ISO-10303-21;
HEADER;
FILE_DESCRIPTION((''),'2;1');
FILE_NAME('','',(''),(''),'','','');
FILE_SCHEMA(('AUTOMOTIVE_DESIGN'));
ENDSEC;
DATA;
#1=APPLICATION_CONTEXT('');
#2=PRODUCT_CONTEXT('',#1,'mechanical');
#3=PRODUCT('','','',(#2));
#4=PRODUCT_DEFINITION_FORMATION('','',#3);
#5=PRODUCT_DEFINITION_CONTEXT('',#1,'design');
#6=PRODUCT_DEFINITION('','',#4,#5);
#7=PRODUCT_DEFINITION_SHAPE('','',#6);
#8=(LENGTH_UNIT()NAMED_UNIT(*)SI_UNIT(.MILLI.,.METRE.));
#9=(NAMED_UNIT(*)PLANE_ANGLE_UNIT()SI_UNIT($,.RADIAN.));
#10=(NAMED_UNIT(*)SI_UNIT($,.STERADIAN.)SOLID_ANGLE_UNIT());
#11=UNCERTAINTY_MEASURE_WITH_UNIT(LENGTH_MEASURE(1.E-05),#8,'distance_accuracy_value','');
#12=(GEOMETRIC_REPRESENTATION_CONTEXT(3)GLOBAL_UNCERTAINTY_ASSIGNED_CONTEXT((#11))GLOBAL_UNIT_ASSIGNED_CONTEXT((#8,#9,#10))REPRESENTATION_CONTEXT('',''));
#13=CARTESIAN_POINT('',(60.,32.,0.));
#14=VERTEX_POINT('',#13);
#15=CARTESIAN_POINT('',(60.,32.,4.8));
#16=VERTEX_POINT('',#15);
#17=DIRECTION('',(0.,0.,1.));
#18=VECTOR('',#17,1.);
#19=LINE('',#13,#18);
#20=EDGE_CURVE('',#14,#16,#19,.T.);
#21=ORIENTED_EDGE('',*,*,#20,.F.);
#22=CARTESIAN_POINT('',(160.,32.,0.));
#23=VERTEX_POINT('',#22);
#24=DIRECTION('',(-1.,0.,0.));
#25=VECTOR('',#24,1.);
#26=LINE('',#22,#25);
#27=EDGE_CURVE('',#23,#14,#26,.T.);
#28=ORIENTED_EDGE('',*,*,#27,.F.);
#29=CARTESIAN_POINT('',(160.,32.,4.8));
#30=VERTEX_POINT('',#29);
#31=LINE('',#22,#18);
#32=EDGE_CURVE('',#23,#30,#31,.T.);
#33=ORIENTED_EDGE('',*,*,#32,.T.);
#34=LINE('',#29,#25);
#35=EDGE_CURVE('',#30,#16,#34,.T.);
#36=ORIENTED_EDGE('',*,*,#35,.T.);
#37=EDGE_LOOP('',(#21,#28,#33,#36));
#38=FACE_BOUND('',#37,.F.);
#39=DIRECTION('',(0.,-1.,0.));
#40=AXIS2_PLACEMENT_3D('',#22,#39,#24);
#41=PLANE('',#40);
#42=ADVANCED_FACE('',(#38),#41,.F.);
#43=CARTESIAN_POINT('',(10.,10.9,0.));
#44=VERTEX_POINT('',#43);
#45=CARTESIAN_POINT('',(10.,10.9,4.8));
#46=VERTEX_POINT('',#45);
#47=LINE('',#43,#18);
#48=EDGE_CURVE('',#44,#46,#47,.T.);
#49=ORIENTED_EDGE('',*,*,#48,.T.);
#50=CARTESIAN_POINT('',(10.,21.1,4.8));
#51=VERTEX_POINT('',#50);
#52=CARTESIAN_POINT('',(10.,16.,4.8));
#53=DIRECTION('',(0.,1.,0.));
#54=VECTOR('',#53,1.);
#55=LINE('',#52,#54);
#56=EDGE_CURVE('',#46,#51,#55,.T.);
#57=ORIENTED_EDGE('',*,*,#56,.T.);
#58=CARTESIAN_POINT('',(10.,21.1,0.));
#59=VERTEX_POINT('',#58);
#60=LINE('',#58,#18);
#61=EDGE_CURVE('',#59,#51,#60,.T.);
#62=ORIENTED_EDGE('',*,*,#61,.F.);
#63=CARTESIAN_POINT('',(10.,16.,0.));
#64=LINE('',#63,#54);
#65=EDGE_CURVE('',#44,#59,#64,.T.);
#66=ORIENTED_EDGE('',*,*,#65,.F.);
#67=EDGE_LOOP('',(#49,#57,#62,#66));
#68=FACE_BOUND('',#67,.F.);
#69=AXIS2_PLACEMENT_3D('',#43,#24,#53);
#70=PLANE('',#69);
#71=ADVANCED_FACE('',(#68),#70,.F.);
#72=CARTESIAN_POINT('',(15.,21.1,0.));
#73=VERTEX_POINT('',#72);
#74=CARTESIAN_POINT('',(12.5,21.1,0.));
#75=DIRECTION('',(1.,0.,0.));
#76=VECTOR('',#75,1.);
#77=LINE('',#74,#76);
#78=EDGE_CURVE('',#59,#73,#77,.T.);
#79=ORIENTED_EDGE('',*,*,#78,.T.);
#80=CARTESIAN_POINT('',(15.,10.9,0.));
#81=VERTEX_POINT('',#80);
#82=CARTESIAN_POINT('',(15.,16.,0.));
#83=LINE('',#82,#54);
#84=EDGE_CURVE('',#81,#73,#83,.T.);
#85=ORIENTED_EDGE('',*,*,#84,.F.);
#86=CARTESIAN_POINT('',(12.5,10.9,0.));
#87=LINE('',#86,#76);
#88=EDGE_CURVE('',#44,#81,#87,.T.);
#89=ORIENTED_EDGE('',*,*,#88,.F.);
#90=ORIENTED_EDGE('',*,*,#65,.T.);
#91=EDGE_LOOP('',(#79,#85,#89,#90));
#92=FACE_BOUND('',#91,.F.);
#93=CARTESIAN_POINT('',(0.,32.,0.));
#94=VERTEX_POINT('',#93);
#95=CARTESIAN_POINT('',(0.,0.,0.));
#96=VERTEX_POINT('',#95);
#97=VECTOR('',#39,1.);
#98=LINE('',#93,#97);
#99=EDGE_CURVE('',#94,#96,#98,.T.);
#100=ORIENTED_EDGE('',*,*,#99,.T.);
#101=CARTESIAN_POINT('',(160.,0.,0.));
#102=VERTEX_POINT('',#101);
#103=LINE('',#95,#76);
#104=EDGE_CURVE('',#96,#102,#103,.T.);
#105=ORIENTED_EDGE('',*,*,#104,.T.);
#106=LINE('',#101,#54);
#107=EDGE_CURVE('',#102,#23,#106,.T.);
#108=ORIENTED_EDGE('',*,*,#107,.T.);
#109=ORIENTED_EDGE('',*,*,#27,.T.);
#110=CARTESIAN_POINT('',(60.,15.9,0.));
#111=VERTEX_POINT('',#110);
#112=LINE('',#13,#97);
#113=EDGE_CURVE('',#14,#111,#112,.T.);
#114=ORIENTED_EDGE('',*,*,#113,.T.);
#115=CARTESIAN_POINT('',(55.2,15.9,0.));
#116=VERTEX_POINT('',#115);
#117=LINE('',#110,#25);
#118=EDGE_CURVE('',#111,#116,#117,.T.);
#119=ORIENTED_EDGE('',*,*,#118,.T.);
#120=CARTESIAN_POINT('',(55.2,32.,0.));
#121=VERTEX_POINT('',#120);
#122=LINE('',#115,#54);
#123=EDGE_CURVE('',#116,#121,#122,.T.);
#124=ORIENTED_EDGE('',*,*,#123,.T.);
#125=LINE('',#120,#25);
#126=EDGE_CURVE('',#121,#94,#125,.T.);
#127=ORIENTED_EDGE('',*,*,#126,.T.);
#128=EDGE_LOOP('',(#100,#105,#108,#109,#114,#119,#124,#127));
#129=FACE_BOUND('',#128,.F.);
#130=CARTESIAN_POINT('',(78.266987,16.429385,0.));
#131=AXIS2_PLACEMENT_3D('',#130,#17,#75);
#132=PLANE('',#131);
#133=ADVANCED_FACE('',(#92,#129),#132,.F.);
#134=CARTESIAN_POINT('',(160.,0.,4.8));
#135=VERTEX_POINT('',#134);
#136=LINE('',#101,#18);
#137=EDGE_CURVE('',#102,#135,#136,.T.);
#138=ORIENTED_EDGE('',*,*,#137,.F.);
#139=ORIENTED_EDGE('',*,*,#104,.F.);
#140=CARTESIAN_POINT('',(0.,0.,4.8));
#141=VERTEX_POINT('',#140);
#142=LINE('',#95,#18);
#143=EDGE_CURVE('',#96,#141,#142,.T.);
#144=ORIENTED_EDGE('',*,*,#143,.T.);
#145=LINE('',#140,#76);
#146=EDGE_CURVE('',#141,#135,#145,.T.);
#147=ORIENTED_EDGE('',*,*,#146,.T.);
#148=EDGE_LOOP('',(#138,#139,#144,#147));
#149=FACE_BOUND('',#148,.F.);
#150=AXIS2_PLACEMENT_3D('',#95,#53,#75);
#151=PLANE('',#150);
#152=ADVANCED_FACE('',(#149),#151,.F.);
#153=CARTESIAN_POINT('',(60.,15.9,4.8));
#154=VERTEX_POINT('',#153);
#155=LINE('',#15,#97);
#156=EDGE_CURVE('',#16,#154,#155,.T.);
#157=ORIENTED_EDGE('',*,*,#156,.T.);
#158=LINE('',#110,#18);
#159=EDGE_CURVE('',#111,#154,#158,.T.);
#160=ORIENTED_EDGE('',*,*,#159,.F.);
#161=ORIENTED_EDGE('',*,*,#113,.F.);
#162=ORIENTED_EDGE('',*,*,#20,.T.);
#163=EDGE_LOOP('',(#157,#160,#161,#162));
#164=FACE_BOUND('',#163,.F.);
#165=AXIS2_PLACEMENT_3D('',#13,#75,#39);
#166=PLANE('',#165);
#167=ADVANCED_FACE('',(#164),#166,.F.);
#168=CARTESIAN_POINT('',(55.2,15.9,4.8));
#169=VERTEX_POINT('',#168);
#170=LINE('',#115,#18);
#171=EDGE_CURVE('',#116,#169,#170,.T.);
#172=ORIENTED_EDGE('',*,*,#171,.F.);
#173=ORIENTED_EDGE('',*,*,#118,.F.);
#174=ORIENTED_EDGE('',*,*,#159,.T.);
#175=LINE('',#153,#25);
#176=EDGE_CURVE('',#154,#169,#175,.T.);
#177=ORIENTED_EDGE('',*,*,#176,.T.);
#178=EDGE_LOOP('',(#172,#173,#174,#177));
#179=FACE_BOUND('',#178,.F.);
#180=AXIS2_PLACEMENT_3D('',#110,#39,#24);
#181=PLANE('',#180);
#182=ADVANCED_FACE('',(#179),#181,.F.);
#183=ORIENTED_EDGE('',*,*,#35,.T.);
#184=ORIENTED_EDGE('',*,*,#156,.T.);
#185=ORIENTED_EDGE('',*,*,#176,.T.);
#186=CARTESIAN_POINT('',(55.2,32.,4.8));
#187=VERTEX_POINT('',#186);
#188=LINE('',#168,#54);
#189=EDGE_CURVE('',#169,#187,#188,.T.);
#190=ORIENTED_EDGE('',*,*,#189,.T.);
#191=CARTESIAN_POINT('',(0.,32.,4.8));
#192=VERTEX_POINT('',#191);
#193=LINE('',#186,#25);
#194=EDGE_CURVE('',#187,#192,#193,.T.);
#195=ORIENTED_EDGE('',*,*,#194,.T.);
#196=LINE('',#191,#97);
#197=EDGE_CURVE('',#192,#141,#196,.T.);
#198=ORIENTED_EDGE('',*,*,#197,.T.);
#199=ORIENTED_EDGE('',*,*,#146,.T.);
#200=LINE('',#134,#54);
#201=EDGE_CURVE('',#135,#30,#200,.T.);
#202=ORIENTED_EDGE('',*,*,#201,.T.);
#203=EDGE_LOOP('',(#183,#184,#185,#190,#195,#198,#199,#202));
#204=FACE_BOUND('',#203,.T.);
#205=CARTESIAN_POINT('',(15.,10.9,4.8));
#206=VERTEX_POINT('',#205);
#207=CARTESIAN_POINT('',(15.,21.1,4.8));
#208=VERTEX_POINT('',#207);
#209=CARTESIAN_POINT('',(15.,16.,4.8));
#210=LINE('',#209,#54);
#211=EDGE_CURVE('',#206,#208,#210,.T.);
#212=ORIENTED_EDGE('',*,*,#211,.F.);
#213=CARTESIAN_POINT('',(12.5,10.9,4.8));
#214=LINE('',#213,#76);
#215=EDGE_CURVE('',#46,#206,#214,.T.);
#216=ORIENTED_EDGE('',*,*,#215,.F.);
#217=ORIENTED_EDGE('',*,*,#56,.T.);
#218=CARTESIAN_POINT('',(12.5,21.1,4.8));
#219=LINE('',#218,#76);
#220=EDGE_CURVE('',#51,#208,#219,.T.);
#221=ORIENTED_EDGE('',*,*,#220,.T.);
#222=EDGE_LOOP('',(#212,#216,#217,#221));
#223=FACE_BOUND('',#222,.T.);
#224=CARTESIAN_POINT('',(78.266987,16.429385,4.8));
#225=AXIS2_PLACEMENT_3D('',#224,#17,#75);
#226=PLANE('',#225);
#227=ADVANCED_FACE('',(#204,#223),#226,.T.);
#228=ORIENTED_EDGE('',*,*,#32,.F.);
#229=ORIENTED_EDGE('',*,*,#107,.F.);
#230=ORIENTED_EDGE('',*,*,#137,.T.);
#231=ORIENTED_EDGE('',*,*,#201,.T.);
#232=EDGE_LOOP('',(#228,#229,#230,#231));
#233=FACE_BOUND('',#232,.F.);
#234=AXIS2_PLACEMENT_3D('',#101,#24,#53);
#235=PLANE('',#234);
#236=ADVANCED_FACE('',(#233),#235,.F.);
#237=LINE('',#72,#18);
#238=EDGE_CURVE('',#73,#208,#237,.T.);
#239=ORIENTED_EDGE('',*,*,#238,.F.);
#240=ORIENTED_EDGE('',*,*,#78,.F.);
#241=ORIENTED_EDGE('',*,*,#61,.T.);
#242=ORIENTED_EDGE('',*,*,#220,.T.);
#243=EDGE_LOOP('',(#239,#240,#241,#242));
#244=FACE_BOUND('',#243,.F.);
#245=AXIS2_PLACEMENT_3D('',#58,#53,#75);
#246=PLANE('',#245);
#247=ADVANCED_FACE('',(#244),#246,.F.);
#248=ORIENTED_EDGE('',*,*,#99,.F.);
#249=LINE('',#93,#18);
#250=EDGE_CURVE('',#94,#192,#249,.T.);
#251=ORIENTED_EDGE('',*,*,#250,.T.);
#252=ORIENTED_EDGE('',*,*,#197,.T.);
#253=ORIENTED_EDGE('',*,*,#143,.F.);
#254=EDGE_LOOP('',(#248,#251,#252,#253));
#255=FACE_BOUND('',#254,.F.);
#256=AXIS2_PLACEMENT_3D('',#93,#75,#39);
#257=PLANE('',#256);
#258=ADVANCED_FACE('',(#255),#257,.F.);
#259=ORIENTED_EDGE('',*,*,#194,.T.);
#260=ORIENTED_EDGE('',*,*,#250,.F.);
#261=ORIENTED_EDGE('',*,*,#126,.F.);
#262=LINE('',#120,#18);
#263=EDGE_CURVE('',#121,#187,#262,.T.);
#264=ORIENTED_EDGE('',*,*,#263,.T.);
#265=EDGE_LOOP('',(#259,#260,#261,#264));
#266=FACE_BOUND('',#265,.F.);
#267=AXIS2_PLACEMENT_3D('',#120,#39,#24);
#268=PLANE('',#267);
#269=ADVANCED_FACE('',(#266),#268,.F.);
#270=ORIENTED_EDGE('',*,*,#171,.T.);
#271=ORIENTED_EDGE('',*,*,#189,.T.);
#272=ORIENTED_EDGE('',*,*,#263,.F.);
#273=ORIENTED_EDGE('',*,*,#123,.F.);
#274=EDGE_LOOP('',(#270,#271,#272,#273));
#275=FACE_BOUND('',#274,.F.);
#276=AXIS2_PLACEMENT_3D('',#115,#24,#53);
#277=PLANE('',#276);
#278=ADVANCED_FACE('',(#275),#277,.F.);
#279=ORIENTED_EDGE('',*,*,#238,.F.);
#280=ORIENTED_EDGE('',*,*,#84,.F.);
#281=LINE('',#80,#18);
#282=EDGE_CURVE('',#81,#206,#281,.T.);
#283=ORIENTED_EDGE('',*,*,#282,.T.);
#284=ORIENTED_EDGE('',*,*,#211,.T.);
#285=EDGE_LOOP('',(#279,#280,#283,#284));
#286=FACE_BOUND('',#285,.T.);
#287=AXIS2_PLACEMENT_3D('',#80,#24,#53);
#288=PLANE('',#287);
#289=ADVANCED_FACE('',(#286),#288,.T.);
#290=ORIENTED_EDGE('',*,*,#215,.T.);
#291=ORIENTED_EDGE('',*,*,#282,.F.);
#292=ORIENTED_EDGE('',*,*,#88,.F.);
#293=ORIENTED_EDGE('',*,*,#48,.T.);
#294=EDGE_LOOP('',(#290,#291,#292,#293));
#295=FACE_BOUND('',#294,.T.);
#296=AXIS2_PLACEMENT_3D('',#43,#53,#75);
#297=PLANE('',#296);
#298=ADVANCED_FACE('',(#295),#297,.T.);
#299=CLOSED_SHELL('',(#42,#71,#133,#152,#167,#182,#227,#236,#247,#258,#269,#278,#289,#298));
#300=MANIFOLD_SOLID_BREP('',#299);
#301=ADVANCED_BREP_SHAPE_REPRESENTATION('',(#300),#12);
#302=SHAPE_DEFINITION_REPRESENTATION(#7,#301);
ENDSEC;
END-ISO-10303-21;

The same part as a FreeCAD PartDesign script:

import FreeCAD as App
import Part
import Sketcher

doc = App.newDocument("Part")
body = doc.addObject("PartDesign::Body", "Body")

# Sketch on XY plane
sketch1 = body.newObject("Sketcher::SketchObject", "Sketch")
sketch1.AttachmentSupport = (doc.getObject("XY_Plane"), [""])
sketch1.MapMode = "FlatFace"
sketch1.addGeometry(Part.LineSegment(App.Vector(0, 32, 0), App.Vector(0, 0, 0)), False)
sketch1.addGeometry(Part.LineSegment(App.Vector(0, 0, 0), App.Vector(160, 0, 0)), False)
sketch1.addGeometry(Part.LineSegment(App.Vector(160, 0, 0), App.Vector(160, 32, 0)), False)
sketch1.addGeometry(Part.LineSegment(App.Vector(160, 32, 0), App.Vector(60, 32, 0)), False)
sketch1.addGeometry(Part.LineSegment(App.Vector(60, 32, 0), App.Vector(60, 15.9, 0)), False)
sketch1.addGeometry(Part.LineSegment(App.Vector(60, 15.9, 0), App.Vector(55.2, 15.9, 0)), False)
sketch1.addGeometry(Part.LineSegment(App.Vector(55.2, 15.9, 0), App.Vector(55.2, 32, 0)), False)
sketch1.addGeometry(Part.LineSegment(App.Vector(55.2, 32, 0), App.Vector(0, 32, 0)), False)
sketch1.addGeometry(Part.LineSegment(App.Vector(15, 10.9, 0), App.Vector(10, 10.9, 0)), False)
sketch1.addGeometry(Part.LineSegment(App.Vector(10, 10.9, 0), App.Vector(10, 21.1, 0)), False)
sketch1.addGeometry(Part.LineSegment(App.Vector(10, 21.1, 0), App.Vector(15, 21.1, 0)), False)
sketch1.addGeometry(Part.LineSegment(App.Vector(15, 21.1, 0), App.Vector(15, 10.9, 0)), False)
sketch1.addConstraint(Sketcher.Constraint("Coincident", 0, 2, 1, 1))
sketch1.addConstraint(Sketcher.Constraint("Coincident", 1, 2, 2, 1))
sketch1.addConstraint(Sketcher.Constraint("Coincident", 2, 2, 3, 1))
sketch1.addConstraint(Sketcher.Constraint("Coincident", 3, 2, 4, 1))
sketch1.addConstraint(Sketcher.Constraint("Coincident", 4, 2, 5, 1))
sketch1.addConstraint(Sketcher.Constraint("Coincident", 5, 2, 6, 1))
sketch1.addConstraint(Sketcher.Constraint("Coincident", 6, 2, 7, 1))
sketch1.addConstraint(Sketcher.Constraint("Coincident", 7, 2, 0, 1))
sketch1.addConstraint(Sketcher.Constraint("Coincident", 8, 2, 9, 1))
sketch1.addConstraint(Sketcher.Constraint("Coincident", 9, 2, 10, 1))
sketch1.addConstraint(Sketcher.Constraint("Coincident", 10, 2, 11, 1))
sketch1.addConstraint(Sketcher.Constraint("Coincident", 11, 2, 8, 1))
sketch1.addConstraint(Sketcher.Constraint("Vertical", 0))
sketch1.addConstraint(Sketcher.Constraint("Horizontal", 1))
sketch1.addConstraint(Sketcher.Constraint("Vertical", 2))
sketch1.addConstraint(Sketcher.Constraint("Horizontal", 3))
sketch1.addConstraint(Sketcher.Constraint("Vertical", 4))
sketch1.addConstraint(Sketcher.Constraint("Horizontal", 5))
sketch1.addConstraint(Sketcher.Constraint("Vertical", 6))
sketch1.addConstraint(Sketcher.Constraint("Horizontal", 7))
sketch1.addConstraint(Sketcher.Constraint("Horizontal", 8))
sketch1.addConstraint(Sketcher.Constraint("Vertical", 9))
sketch1.addConstraint(Sketcher.Constraint("Horizontal", 10))
sketch1.addConstraint(Sketcher.Constraint("Vertical", 11))
sketch1.addConstraint(Sketcher.Constraint("Coincident", 0, 2, -1, 1))
sketch1.addConstraint(Sketcher.Constraint("Horizontal", 3, 2, 6, 2))
sketch1.addConstraint(Sketcher.Constraint("DistanceX", 1, 1, 1, 2, 160.0))
sketch1.addConstraint(Sketcher.Constraint("DistanceX", 3, 2, 3, 1, 100.0))
sketch1.addConstraint(Sketcher.Constraint("DistanceX", 8, 2, 8, 1, 5.0))
sketch1.addConstraint(Sketcher.Constraint("DistanceY", 0, 2, 0, 1, 32.0))
sketch1.addConstraint(Sketcher.Constraint("DistanceX", 5, 2, 5, 1, 4.8))
sketch1.addConstraint(Sketcher.Constraint("DistanceY", 4, 2, 4, 1, 16.1))
sketch1.addConstraint(Sketcher.Constraint("DistanceY", 9, 1, 9, 2, 10.2))
sketch1.addConstraint(Sketcher.Constraint("DistanceX", -1, 1, 8, 2, 10.0))
sketch1.addConstraint(Sketcher.Constraint("DistanceY", 8, 2, 5, 2, 5.0))
pad1 = body.newObject("PartDesign::Pad", "Pad")
pad1.Profile = sketch1
pad1.Length = 4.8

doc.recompute()
